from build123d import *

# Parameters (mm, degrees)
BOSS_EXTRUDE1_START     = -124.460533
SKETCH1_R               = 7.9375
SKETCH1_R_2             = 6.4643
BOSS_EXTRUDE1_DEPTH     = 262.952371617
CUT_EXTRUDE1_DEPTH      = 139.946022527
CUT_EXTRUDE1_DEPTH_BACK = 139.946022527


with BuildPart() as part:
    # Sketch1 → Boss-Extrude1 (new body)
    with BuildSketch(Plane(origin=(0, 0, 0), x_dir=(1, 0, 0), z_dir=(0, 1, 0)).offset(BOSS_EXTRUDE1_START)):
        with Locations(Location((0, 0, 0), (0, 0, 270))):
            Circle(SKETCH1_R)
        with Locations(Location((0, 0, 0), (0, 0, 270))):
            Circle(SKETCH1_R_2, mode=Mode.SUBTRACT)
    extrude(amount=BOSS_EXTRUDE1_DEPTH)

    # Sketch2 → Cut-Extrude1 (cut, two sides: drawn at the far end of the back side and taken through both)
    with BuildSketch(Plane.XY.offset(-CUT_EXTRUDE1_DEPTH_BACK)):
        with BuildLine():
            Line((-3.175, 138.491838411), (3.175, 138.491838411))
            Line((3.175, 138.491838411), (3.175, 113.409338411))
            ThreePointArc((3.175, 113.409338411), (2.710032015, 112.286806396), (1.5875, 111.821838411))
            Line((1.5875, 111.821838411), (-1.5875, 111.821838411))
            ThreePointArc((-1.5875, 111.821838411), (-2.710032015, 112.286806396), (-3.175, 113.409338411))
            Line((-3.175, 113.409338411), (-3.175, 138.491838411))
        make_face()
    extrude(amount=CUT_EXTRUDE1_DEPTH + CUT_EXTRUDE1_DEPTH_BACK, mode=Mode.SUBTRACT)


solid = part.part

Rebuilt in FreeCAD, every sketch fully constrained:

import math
import FreeCAD as App
import Part
import Sketcher

V = App.Vector
Q = App.Units.Quantity

doc = App.newDocument("Part")
body = doc.addObject("PartDesign::Body", "Body")

# Sketch on XZ plane
sketch1 = body.newObject("Sketcher::SketchObject", "Sketch")
sketch1.AttachmentSupport = (doc.getObject("XZ_Plane"), [""])
sketch1.MapMode = "FlatFace"
sketch1.AttachmentOffset = App.Placement(V(0, 0, 124.460533), App.Rotation())
sketch1.addGeometry(Part.Circle(V(0, 0, 0), V(0, 0, 1), 8), False)
sketch1.addGeometry(Part.Circle(V(0, 0, 0), V(0, 0, 1), 6), False)
sketch1.addConstraint(Sketcher.Constraint("Coincident", 0, 3, -1, 1))
sketch1.addConstraint(Sketcher.Constraint("Coincident", 1, 3, -1, 1))
sketch1.addConstraint(Sketcher.Constraint("Diameter", 0, Q("0.625 in")))
sketch1.addConstraint(Sketcher.Constraint("Diameter", 1, Q("0.509 in")))
pad1 = body.newObject("PartDesign::Pad", "Pad")
pad1.Profile = sketch1
pad1.Length = 262.952372
pad1.Reversed = True

# Sketch on XY plane
sketch2 = body.newObject("Sketcher::SketchObject", "Sketch001")
sketch2.AttachmentSupport = (doc.getObject("XY_Plane"), [""])
sketch2.MapMode = "FlatFace"
sketch2.addGeometry(Part.LineSegment(V(3.2, 138.5, 0), V(-3.2, 138.5, 0)), False)
sketch2.addGeometry(Part.LineSegment(V(-3.2, 138.5, 0), V(-3.2, 113.4, 0)), False)
sketch2.addGeometry(Part.ArcOfCircle(Part.Circle(V(-1.6, 113.4, 0), V(0, 0, 1), 1.6), math.radians(180), math.radians(270)), False)
sketch2.addGeometry(Part.LineSegment(V(-1.6, 111.8, 0), V(1.6, 111.8, 0)), False)
sketch2.addGeometry(Part.ArcOfCircle(Part.Circle(V(1.6, 113.4, 0), V(0, 0, 1), 1.6), math.radians(-90), math.radians(0)), False)
sketch2.addGeometry(Part.LineSegment(V(3.2, 113.4, 0), V(3.2, 138.5, 0)), False)
sketch2.addConstraint(Sketcher.Constraint("Coincident", 0, 2, 1, 1))
sketch2.addConstraint(Sketcher.Constraint("Tangent", 1, 2, 2, 1))
sketch2.addConstraint(Sketcher.Constraint("Tangent", 2, 2, 3, 1))
sketch2.addConstraint(Sketcher.Constraint("Tangent", 3, 2, 4, 1))
sketch2.addConstraint(Sketcher.Constraint("Tangent", 4, 2, 5, 1))
sketch2.addConstraint(Sketcher.Constraint("Coincident", 5, 2, 0, 1))
sketch2.addConstraint(Sketcher.Constraint("Horizontal", 0))
sketch2.addConstraint(Sketcher.Constraint("Vertical", 1))
sketch2.addConstraint(Sketcher.Constraint("Horizontal", 3))
sketch2.addConstraint(Sketcher.Constraint("Vertical", 5))
sketch2.addConstraint(Sketcher.Constraint("Equal", 2, 4))
sketch2.addConstraint(Sketcher.Constraint("Radius", 2, Q("0.0625 in")))
sketch2.addConstraint(Sketcher.Constraint("DistanceX", 0, 2, 0, 1, Q("0.25 in")))
sketch2.addConstraint(Sketcher.Constraint("DistanceY", 2, 2, 0, 2, Q("1.05 in")))
sketch2.addConstraint(Sketcher.Constraint("DistanceX", 2, 3, -1, 1, Q("0.0625 in")))
sketch2.addConstraint(Sketcher.Constraint("DistanceY", -1, 1, 2, 3, 113.409338))
pocket1 = body.newObject("PartDesign::Pocket", "Pocket")
pocket1.Profile = sketch2
pocket1.Type = "ThroughAll"
pocket1.Midplane = True

doc.recompute()
